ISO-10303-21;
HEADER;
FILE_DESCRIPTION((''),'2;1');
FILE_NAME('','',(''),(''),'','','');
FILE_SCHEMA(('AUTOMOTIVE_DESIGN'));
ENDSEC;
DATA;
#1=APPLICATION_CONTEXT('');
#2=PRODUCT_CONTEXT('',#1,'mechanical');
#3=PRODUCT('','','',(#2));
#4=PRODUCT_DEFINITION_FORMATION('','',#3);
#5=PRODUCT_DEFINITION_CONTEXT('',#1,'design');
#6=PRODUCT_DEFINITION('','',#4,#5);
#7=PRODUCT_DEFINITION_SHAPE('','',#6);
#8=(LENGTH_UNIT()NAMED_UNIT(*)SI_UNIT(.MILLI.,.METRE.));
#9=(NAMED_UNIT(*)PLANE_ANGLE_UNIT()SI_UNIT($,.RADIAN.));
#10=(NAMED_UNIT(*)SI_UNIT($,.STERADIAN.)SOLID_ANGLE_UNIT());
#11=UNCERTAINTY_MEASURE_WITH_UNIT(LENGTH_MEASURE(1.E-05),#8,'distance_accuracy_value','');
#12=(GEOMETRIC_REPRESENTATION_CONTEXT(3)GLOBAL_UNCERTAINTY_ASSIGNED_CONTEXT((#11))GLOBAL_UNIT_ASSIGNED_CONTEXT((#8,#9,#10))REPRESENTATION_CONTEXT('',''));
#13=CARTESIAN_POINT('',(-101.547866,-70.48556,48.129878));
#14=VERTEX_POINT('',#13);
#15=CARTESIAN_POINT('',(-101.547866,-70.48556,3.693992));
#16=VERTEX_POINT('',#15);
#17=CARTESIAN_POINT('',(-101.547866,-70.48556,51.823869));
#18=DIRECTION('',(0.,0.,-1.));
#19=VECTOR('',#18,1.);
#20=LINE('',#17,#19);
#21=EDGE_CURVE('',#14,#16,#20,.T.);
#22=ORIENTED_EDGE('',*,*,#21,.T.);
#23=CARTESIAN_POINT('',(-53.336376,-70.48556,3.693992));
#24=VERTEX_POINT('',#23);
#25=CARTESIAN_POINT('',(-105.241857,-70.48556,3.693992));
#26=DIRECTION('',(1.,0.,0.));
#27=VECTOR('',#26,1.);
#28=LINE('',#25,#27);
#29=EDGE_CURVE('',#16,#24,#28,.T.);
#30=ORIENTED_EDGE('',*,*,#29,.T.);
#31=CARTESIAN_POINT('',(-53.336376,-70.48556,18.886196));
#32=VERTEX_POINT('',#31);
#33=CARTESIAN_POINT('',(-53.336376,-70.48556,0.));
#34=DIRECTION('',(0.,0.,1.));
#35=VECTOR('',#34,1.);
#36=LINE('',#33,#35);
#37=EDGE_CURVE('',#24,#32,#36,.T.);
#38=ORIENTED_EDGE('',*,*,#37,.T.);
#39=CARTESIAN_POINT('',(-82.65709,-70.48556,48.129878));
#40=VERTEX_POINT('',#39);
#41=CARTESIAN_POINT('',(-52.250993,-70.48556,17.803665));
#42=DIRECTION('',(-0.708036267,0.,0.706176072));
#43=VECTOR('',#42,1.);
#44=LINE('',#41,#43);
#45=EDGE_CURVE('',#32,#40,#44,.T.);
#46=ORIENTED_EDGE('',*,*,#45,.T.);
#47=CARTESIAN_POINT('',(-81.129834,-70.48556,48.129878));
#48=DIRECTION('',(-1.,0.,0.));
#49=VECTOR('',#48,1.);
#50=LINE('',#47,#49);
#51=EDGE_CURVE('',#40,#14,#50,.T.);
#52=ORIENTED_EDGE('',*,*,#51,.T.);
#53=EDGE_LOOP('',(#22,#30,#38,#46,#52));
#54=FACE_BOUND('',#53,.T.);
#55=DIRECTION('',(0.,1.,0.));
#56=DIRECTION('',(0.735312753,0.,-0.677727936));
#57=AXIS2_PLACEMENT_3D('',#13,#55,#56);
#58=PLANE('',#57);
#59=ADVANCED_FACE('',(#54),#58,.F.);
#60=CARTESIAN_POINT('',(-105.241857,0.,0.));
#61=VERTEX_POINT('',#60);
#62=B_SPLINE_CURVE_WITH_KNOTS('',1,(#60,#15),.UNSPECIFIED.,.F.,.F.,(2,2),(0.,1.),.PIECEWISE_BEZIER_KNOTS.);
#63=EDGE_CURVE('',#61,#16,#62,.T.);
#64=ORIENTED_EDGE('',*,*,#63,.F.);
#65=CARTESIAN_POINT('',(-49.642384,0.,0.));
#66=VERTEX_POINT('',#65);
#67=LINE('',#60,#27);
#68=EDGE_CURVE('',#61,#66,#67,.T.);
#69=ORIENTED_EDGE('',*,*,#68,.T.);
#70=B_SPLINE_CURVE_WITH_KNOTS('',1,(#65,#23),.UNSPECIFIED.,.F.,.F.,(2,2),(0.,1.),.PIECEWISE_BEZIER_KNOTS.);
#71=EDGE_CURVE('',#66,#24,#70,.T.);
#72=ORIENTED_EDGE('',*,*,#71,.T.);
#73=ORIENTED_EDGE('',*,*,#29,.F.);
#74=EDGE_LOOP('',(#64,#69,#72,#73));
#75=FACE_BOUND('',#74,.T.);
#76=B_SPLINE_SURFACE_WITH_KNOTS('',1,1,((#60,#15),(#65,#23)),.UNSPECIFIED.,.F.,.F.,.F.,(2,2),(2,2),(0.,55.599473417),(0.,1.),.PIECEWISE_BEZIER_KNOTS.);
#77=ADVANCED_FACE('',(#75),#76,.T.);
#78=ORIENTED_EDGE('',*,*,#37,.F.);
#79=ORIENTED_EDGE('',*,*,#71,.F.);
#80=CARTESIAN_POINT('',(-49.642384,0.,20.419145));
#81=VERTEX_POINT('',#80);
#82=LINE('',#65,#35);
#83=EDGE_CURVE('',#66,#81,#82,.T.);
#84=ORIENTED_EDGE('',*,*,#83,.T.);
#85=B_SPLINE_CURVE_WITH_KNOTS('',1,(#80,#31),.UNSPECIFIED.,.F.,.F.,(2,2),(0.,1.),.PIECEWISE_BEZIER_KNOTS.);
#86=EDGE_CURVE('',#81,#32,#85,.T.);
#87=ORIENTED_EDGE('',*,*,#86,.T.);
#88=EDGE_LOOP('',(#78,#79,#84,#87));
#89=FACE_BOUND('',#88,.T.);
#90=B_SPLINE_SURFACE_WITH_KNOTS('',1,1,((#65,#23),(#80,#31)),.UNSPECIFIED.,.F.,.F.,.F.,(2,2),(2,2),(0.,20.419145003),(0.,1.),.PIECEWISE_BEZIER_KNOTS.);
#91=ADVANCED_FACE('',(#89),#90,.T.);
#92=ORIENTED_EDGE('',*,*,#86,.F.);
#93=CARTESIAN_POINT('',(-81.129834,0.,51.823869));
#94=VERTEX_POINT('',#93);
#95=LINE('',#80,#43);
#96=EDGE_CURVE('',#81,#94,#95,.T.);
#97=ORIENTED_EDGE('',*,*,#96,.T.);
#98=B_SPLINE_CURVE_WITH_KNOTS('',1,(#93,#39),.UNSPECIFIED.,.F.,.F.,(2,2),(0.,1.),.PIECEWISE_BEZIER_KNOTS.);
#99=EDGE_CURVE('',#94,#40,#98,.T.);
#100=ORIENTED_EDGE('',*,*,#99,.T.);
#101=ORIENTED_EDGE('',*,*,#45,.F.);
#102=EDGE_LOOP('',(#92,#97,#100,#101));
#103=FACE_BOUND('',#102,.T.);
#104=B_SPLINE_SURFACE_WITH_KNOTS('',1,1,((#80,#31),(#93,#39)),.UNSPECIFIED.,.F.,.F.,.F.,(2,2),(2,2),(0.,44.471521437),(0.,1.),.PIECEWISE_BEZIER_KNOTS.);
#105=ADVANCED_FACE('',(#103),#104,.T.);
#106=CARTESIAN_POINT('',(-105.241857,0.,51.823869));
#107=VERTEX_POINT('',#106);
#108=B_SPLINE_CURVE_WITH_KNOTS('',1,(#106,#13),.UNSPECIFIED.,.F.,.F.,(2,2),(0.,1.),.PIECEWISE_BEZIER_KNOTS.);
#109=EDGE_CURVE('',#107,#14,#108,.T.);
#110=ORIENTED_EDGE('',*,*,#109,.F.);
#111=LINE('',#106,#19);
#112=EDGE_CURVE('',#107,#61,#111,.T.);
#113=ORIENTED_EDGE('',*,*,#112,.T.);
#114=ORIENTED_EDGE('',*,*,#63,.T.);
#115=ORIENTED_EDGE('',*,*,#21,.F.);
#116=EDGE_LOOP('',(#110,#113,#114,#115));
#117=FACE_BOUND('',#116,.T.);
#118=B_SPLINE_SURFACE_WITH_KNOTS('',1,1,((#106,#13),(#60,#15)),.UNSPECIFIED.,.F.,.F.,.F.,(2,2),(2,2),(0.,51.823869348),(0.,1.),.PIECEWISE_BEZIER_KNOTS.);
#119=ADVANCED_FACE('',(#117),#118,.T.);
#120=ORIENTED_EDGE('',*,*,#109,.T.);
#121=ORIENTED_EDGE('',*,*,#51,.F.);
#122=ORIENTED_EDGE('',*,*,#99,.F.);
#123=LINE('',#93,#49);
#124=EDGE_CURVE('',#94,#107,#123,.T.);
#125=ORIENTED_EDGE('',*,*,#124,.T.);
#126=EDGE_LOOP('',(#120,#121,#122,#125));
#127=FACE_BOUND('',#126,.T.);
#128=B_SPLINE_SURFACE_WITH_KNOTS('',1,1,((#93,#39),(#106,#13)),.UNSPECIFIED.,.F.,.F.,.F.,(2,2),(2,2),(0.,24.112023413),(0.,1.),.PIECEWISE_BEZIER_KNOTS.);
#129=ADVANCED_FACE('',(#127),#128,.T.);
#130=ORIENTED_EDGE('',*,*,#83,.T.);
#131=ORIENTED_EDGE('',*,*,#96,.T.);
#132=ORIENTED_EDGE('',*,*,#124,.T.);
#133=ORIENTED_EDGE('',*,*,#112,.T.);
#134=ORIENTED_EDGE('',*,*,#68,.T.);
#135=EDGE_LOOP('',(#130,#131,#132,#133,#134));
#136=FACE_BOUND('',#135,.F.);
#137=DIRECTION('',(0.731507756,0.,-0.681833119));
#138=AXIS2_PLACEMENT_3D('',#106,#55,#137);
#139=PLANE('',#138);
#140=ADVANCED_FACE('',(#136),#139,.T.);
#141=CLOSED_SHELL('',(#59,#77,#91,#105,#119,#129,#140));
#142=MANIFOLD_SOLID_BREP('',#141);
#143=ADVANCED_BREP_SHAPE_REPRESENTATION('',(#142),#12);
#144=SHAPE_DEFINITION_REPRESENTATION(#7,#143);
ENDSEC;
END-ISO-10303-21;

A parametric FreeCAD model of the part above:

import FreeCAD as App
import Part
import Sketcher

V = App.Vector

doc = App.newDocument("Part")
body = doc.addObject("PartDesign::Body", "Body")

# Sketch on XZ plane
sketch1 = body.newObject("Sketcher::SketchObject", "Sketch")
sketch1.AttachmentSupport = (doc.getObject("XZ_Plane"), [""])
sketch1.MapMode = "FlatFace"
sketch1.addGeometry(Part.LineSegment(V(-105, 52, 0), V(-105, 0, 0)), False)
sketch1.addGeometry(Part.LineSegment(V(-105, 0, 0), V(-50, 0, 0)), False)
sketch1.addGeometry(Part.LineSegment(V(-50, 0, 0), V(-50, 20, 0)), False)
sketch1.addGeometry(Part.LineSegment(V(-50, 20, 0), V(-81, 52, 0)), False)
sketch1.addGeometry(Part.LineSegment(V(-81, 52, 0), V(-105, 52, 0)), False)
sketch1.addConstraint(Sketcher.Constraint("Coincident", 0, 2, 1, 1))
sketch1.addConstraint(Sketcher.Constraint("Coincident", 1, 2, 2, 1))
sketch1.addConstraint(Sketcher.Constraint("Coincident", 2, 2, 3, 1))
sketch1.addConstraint(Sketcher.Constraint("Coincident", 3, 2, 4, 1))
sketch1.addConstraint(Sketcher.Constraint("Coincident", 4, 2, 0, 1))
sketch1.addConstraint(Sketcher.Constraint("Vertical", 0))
sketch1.addConstraint(Sketcher.Constraint("Horizontal", 1))
sketch1.addConstraint(Sketcher.Constraint("Vertical", 2))
sketch1.addConstraint(Sketcher.Constraint("Horizontal", 4))
sketch1.addConstraint(Sketcher.Constraint("PointOnObject", 0, 2, -1))
sketch1.addConstraint(Sketcher.Constraint("DistanceY", 0, 2, 0, 1, 51.823869))
sketch1.addConstraint(Sketcher.Constraint("Distance", 3, 44.471521))
sketch1.addConstraint(Sketcher.Constraint("DistanceX", 1, 1, 1, 2, 55.599473))
sketch1.addConstraint(Sketcher.Constraint("DistanceX", 4, 2, 4, 1, 24.112023))
sketch1.addConstraint(Sketcher.Constraint("DistanceX", 0, 2, -1, 1, 105.241857))
pad1 = body.newObject("PartDesign::Pad", "Pad")
pad1.Profile = sketch1
pad1.Length = 70.48556
pad1.TaperAngle = -3

doc.recompute()
